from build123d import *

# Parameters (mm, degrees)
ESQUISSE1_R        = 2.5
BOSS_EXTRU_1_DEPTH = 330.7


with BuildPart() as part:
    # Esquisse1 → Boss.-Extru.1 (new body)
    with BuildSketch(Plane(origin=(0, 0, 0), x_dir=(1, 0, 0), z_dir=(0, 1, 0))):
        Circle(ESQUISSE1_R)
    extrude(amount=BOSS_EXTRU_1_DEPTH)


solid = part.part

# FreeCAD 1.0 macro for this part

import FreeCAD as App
import Part
import Sketcher

V = App.Vector

doc = App.newDocument("Part")
body = doc.addObject("PartDesign::Body", "Body")

sketch1 = body.newObject("Sketcher::SketchObject", "Sketch")
sketch1.AttachmentSupport = (doc.getObject("XZ_Plane"), [""])
sketch1.MapMode = "FlatFace"
sketch1.addGeometry(Part.Circle(V(0, 0, 0), V(0, 0, 1), 2.5), False)
sketch1.addConstraint(Sketcher.Constraint("Coincident", 0, 3, -1, 1))
sketch1.addConstraint(Sketcher.Constraint("Diameter", 0, 5.0))
pad1 = body.newObject("PartDesign::Pad", "Pad")
pad1.Profile = sketch1
pad1.Length = 330.7
pad1.Reversed = True

doc.recompute()
